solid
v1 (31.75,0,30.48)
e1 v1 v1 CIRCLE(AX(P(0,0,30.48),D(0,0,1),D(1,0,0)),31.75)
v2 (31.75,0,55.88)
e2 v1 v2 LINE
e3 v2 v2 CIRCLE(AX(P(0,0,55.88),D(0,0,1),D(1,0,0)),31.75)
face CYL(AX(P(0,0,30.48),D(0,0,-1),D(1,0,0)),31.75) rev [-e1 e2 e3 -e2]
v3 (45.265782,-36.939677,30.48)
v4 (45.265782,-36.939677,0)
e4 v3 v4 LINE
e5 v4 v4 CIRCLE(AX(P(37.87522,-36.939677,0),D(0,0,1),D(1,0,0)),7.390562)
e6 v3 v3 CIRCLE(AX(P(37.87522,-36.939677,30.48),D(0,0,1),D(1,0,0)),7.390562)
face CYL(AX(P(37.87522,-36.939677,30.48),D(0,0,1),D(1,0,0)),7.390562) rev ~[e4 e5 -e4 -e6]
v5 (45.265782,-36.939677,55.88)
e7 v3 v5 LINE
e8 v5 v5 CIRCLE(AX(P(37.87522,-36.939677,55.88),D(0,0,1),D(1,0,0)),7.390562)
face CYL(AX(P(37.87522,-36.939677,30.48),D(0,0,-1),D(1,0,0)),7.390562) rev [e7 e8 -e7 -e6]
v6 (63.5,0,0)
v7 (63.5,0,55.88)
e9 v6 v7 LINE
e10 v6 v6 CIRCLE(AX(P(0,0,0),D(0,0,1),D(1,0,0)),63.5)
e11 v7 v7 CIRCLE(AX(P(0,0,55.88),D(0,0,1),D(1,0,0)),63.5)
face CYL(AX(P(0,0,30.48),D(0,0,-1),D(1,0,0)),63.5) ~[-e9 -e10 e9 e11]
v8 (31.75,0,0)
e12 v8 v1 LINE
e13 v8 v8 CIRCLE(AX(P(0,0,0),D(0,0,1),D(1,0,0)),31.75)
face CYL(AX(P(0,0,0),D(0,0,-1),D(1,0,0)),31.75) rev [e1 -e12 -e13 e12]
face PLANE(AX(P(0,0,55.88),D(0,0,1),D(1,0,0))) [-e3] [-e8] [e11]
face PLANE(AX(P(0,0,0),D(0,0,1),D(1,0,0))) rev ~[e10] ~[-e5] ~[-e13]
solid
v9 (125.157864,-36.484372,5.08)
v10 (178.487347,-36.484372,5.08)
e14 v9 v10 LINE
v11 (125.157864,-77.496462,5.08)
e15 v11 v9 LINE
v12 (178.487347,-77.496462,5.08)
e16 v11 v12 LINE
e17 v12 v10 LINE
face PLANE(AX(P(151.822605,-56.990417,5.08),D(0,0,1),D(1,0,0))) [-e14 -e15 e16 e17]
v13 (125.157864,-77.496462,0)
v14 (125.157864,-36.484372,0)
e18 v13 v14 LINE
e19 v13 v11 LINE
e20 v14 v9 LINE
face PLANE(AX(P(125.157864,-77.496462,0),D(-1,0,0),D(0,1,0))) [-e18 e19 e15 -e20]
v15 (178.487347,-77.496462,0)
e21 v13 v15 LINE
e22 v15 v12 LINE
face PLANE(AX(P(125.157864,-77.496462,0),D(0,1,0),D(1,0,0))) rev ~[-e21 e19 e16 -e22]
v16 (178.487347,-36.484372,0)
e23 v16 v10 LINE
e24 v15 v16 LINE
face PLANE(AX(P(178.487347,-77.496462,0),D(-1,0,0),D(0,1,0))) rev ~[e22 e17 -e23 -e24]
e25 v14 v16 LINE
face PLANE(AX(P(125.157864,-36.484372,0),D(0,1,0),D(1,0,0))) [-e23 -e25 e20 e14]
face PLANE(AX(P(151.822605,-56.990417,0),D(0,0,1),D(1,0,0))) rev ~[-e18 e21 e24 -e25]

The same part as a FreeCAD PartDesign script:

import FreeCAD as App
import Part
import Sketcher
from FreeCAD import Vector
Q = App.Units.Quantity

doc = App.newDocument("Part")
body = doc.addObject("PartDesign::Body", "Body")

sketch1 = doc.addObject("Sketcher::SketchObject", "Sketch")
body.addObject(sketch1)
sketch1.AttachmentSupport = (doc.XY_Plane, [""])
sketch1.MapMode = "FlatFace"
sketch1.addGeometry(Part.Circle(Vector(0, 0, 0), Vector(0, 0, 1), 63.5), False)
sketch1.addGeometry(Part.Circle(Vector(0, 0, 0), Vector(0, 0, 1), 31.75), False)
sketch1.addConstraint(Sketcher.Constraint("Coincident", 0, 3, -1, 1))
sketch1.addConstraint(Sketcher.Constraint("Coincident", 1, 3, -1, 1))
sketch1.addConstraint(Sketcher.Constraint("Diameter", 0, Q("5 in")))
sketch1.addConstraint(Sketcher.Constraint("Diameter", 1, Q("2.5 in")))
pad1 = doc.addObject("PartDesign::Pad", "Pad")
body.addObject(pad1)
pad1.Profile = sketch1
pad1.Length = Q("1.2 in")

sketch2 = doc.addObject("Sketcher::SketchObject", "Sketch001")
body.addObject(sketch2)
sketch2.AttachmentSupport = (doc.XY_Plane, [""])
sketch2.MapMode = "FlatFace"
sketch2.AttachmentOffset = App.Placement(Vector(0, 0, 1.2 * 25.4), App.Rotation())
sketch2.addGeometry(Part.Circle(Vector(37.87522, -36.939677, 0), Vector(0, 0, 1), 7.390562), False)
sketch2.addConstraint(Sketcher.Constraint("Diameter", 0, 14.781124))
sketch2.addConstraint(Sketcher.Constraint("DistanceX", -1, 1, 0, 3, 37.87522))
sketch2.addConstraint(Sketcher.Constraint("DistanceY", 0, 3, -1, 1, 36.939677))
pocket1 = doc.addObject("PartDesign::Pocket", "Pocket")
body.addObject(pocket1)
pocket1.Profile = sketch2
pocket1.Length = Q("5 in")

sketch3 = doc.addObject("Sketcher::SketchObject", "Sketch002")
body.addObject(sketch3)
sketch3.AttachmentSupport = (doc.XY_Plane, [""])
sketch3.MapMode = "FlatFace"
sketch3.AttachmentOffset = App.Placement(Vector(0, 0, 1.2 * 25.4), App.Rotation())
sketch3.addGeometry(Part.Circle(Vector(0, 0, 0), Vector(0, 0, 1), 63.5), False)
sketch3.addGeometry(Part.Circle(Vector(37.87522, -36.939677, 0), Vector(0, 0, 1), 7.390562), False)
sketch3.addGeometry(Part.Circle(Vector(0, 0, 0), Vector(0, 0, 1), 31.75), False)
sketch3.addConstraint(Sketcher.Constraint("Coincident", 0, 3, -1, 1))
sketch3.addConstraint(Sketcher.Constraint("Coincident", 2, 3, -1, 1))
sketch3.addConstraint(Sketcher.Constraint("Diameter", 0, Q("5 in")))
sketch3.addConstraint(Sketcher.Constraint("Diameter", 2, Q("2.5 in")))
sketch3.addConstraint(Sketcher.Constraint("Diameter", 1, 14.781124))
sketch3.addConstraint(Sketcher.Constraint("DistanceX", -1, 1, 1, 3, 37.87522))
sketch3.addConstraint(Sketcher.Constraint("DistanceY", 1, 3, -1, 1, 36.939677))
pad2 = doc.addObject("PartDesign::Pad", "Pad001")
body.addObject(pad2)
pad2.Profile = sketch3
pad2.Length = Q("1 in")
body2 = doc.addObject("PartDesign::Body", "Body001")

sketch4 = doc.addObject("Sketcher::SketchObject", "Sketch003")
body2.addObject(sketch4)
sketch4.AttachmentSupport = (doc.getObject("XY_Plane001"), [""])
sketch4.MapMode = "FlatFace"
sketch4.addGeometry(Part.LineSegment(Vector(125.157864, -36.484372, 0), Vector(125.157864, -77.496462, 0)), False)
sketch4.addGeometry(Part.LineSegment(Vector(125.157864, -77.496462, 0), Vector(178.487347, -77.496462, 0)), False)
sketch4.addGeometry(Part.LineSegment(Vector(178.487347, -77.496462, 0), Vector(178.487347, -36.484372, 0)), False)
sketch4.addGeometry(Part.LineSegment(Vector(178.487347, -36.484372, 0), Vector(125.157864, -36.484372, 0)), False)
sketch4.addConstraint(Sketcher.Constraint("Coincident", 0, 2, 1, 1))
sketch4.addConstraint(Sketcher.Constraint("Coincident", 1, 2, 2, 1))
sketch4.addConstraint(Sketcher.Constraint("Coincident", 2, 2, 3, 1))
sketch4.addConstraint(Sketcher.Constraint("Coincident", 3, 2, 0, 1))
sketch4.addConstraint(Sketcher.Constraint("Vertical", 0))
sketch4.addConstraint(Sketcher.Constraint("Horizontal", 1))
sketch4.addConstraint(Sketcher.Constraint("Vertical", 2))
sketch4.addConstraint(Sketcher.Constraint("Horizontal", 3))
sketch4.addConstraint(Sketcher.Constraint("DistanceY", 0, 2, 0, 1, 41.01209))
sketch4.addConstraint(Sketcher.Constraint("DistanceX", 1, 1, 1, 2, 53.329483))
sketch4.addConstraint(Sketcher.Constraint("DistanceY", 0, 2, -1, 1, 77.496462))
sketch4.addConstraint(Sketcher.Constraint("DistanceX", -1, 1, 0, 2, 125.157864))
pad3 = doc.addObject("PartDesign::Pad", "Pad002")
body2.addObject(pad3)
pad3.Profile = sketch4
pad3.Length = Q("0.2 in")

doc.recompute()
